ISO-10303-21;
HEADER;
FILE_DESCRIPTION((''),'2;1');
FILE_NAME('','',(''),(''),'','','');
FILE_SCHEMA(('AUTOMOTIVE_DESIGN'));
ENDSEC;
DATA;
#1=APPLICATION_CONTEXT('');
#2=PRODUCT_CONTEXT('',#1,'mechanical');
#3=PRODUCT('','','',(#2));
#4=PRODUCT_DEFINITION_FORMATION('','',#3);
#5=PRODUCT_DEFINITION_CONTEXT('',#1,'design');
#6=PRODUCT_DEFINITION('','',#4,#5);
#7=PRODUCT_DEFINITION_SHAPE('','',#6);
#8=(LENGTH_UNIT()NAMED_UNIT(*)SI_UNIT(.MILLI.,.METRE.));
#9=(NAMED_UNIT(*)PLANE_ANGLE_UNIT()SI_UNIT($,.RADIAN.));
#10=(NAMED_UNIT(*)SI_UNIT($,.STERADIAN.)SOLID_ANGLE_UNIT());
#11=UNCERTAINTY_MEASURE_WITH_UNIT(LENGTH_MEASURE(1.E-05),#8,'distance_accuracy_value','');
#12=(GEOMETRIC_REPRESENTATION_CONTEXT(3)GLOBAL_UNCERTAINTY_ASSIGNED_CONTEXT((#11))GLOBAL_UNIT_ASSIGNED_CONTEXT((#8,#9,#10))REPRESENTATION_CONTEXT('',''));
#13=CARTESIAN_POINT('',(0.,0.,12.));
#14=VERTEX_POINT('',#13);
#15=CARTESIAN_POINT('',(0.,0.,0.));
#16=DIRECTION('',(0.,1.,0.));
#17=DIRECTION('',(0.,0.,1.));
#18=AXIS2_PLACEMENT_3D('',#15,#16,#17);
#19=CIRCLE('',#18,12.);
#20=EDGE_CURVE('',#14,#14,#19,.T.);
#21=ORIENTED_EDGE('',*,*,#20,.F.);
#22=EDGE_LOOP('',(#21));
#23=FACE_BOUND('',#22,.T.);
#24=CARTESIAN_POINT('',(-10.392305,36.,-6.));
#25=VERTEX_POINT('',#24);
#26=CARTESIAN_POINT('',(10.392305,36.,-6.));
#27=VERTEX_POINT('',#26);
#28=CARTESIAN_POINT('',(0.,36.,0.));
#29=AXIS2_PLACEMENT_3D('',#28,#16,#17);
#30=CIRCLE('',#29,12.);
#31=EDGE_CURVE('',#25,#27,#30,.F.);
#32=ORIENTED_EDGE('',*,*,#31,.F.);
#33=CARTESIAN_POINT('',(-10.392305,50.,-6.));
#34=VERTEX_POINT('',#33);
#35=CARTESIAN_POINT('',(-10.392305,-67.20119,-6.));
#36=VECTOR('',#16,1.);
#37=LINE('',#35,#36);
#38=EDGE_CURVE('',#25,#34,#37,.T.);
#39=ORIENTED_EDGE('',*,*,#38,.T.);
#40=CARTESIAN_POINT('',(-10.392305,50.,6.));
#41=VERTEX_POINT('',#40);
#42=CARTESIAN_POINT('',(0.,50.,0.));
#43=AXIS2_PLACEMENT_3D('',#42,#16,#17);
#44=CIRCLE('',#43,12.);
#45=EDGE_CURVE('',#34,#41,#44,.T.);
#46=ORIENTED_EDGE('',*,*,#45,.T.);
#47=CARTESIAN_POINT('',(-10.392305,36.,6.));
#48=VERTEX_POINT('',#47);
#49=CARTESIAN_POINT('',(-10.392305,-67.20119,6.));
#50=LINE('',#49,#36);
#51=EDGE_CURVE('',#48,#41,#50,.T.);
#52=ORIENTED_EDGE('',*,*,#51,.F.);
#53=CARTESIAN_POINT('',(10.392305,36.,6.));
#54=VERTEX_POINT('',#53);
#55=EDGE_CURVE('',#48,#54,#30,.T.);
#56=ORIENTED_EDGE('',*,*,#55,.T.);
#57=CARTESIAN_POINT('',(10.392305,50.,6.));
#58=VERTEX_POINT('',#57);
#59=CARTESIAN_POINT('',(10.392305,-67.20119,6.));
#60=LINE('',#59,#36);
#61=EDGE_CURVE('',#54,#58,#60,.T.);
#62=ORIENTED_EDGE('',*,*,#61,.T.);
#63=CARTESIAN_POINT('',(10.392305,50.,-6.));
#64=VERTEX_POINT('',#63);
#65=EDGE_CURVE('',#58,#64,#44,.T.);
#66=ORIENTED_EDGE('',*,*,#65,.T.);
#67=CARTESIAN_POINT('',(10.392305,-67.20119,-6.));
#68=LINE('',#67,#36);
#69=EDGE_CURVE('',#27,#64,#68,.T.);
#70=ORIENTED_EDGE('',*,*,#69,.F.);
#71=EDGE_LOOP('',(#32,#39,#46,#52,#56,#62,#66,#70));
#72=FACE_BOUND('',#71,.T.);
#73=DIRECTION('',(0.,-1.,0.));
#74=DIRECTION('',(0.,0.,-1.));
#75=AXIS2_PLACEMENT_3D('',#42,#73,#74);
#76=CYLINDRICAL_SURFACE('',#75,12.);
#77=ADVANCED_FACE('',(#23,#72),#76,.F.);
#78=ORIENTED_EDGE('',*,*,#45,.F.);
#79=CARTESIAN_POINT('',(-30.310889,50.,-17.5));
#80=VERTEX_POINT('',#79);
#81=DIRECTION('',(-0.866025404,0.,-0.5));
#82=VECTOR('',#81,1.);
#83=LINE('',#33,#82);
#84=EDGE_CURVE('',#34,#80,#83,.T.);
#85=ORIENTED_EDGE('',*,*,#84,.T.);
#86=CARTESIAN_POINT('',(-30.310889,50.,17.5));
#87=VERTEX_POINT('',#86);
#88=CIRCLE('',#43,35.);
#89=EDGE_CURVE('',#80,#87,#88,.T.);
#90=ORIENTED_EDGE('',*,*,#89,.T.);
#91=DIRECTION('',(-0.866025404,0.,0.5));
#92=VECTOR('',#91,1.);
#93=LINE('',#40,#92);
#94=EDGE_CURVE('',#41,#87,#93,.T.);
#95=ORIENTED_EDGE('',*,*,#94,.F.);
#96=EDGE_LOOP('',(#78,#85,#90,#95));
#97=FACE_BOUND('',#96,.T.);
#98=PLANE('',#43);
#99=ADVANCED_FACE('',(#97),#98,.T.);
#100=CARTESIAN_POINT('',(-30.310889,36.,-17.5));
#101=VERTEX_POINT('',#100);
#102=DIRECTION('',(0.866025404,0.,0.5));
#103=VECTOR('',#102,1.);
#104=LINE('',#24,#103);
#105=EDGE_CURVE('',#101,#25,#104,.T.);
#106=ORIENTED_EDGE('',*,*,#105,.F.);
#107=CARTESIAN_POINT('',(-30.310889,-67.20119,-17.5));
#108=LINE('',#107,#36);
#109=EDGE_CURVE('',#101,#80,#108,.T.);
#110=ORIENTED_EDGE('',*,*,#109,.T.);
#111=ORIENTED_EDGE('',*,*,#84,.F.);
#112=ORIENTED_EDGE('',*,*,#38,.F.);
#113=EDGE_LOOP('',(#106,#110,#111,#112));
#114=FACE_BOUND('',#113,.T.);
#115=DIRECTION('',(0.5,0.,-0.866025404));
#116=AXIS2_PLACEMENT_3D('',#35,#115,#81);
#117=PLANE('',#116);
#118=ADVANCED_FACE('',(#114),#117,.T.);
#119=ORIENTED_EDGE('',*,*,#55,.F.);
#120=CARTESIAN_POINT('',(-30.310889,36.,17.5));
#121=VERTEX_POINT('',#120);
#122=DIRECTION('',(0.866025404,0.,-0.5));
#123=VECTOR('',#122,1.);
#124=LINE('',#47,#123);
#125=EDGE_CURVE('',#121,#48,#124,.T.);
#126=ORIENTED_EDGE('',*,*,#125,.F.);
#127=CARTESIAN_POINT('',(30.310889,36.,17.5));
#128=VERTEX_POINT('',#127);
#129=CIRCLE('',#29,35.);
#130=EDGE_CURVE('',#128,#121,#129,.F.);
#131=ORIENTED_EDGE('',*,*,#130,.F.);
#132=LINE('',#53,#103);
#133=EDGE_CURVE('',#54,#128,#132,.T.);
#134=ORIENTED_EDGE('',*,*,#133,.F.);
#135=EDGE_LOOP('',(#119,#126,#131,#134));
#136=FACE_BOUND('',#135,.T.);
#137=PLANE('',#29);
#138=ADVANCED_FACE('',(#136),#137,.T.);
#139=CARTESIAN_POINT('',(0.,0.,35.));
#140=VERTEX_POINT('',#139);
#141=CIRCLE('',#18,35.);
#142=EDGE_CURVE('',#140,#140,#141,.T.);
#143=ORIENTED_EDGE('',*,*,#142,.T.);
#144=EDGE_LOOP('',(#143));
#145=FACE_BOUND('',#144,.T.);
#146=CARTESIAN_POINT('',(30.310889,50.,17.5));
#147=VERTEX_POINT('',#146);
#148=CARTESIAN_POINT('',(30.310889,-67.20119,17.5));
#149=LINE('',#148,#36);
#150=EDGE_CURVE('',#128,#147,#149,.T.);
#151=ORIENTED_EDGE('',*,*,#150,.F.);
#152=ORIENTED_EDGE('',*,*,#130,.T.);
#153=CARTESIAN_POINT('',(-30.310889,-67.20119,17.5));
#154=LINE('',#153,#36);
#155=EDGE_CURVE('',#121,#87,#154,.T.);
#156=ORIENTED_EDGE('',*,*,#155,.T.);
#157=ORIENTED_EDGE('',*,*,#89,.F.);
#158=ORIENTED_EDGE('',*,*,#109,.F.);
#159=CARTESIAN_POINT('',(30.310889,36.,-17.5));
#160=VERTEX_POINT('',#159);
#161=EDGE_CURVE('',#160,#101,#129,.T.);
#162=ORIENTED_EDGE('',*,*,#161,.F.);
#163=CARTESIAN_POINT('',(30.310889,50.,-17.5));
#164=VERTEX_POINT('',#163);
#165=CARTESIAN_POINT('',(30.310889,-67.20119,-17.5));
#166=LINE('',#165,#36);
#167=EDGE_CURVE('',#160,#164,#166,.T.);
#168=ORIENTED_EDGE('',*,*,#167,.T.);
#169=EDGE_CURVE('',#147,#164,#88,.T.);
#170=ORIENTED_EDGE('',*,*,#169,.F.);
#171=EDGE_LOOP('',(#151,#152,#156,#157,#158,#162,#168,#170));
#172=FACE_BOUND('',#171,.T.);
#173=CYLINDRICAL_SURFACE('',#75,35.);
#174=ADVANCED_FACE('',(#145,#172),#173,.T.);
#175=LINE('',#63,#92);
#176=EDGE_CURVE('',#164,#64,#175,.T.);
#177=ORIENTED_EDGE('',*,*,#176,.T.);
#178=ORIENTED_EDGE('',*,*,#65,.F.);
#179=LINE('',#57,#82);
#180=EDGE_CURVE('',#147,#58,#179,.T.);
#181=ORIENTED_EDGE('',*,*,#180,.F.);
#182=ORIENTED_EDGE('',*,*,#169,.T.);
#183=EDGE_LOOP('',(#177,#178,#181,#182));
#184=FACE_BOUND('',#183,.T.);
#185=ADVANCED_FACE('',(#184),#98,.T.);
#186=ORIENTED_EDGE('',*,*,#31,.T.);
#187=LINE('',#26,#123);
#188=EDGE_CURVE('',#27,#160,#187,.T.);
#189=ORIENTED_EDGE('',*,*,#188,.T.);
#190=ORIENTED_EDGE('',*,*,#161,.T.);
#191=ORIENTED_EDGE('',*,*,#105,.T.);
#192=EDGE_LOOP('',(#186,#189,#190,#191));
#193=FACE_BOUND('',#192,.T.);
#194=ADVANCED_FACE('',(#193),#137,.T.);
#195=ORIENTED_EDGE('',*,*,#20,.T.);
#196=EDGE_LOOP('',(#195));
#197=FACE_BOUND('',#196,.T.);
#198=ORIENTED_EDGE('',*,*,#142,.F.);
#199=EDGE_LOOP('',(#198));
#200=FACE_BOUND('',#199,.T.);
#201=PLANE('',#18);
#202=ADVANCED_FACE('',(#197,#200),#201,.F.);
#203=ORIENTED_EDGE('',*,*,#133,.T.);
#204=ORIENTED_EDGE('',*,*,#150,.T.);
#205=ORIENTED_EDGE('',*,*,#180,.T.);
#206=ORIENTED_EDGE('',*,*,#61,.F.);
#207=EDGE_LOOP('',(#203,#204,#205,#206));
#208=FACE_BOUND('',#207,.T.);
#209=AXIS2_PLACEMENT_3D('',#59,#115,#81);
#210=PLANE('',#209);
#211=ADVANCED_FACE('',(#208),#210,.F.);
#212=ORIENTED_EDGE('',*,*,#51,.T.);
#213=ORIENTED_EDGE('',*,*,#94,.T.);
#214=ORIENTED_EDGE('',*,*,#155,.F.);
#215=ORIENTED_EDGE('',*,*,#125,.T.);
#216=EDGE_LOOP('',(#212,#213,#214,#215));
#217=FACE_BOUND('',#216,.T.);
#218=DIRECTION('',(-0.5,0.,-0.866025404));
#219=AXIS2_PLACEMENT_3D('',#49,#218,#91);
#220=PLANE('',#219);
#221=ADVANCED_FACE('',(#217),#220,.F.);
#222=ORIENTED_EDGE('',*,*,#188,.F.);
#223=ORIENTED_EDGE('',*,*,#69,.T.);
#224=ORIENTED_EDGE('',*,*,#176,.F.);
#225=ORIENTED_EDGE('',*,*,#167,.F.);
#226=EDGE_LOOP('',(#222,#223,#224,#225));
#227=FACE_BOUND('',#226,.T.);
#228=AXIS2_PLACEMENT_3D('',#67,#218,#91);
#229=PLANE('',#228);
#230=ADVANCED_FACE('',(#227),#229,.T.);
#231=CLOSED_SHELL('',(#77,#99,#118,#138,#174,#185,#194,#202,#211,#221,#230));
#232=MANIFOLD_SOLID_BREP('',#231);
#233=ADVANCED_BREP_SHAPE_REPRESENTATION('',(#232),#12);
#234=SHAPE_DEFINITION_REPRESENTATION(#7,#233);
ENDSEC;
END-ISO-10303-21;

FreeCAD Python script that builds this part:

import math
import FreeCAD as App
import Part
import Sketcher

V = App.Vector
Q = App.Units.Quantity

doc = App.newDocument("Part")
body = doc.addObject("PartDesign::Body", "Body")

# Sketch on XZ plane
sketch1 = body.newObject("Sketcher::SketchObject", "Sketch")
sketch1.AttachmentSupport = (doc.getObject("XZ_Plane"), [""])
sketch1.MapMode = "FlatFace"
sketch1.addGeometry([
    Part.Circle(V(0, 0, 0), V(0, 0, 1), 35),
    Part.Circle(V(0, 0, 0), V(0, 0, 1), 12),
], False)
sketch1.addConstraint([
    Sketcher.Constraint("Coincident", 0, 3, -1, 1),
    Sketcher.Constraint("Coincident", 1, 3, -1, 1),
    Sketcher.Constraint("Diameter", 0, 70.0),
    Sketcher.Constraint("Diameter", 1, 24.0),
])
pad1 = body.newObject("PartDesign::Pad", "Pad")
pad1.Profile = sketch1
pad1.Length = 50
pad1.Reversed = True

# Sketch on XZ plane
sketch2 = body.newObject("Sketcher::SketchObject", "Sketch001")
sketch2.AttachmentSupport = (doc.getObject("XZ_Plane"), [""])
sketch2.MapMode = "FlatFace"
sketch2.AttachmentOffset = App.Placement(V(0, 0, -36), App.Rotation())
sketch2.addGeometry([
    Part.LineSegment(V(30.310889, 17.5, 0), V(10.392305, 6, 0)),
    Part.ArcOfCircle(Part.Circle(V(0, 0, 0), V(0, 0, 1), 12), math.radians(30), math.radians(150)),
    Part.LineSegment(V(-10.392305, 6, 0), V(-30.310889, 17.5, 0)),
    Part.ArcOfCircle(Part.Circle(V(0, 0, 0), V(0, 0, 1), 35), math.radians(30), math.radians(150)),
], False)
sketch2.addConstraint([
    Sketcher.Constraint("Coincident", 0, 2, 1, 1),
    Sketcher.Constraint("Coincident", 1, 2, 2, 1),
    Sketcher.Constraint("Coincident", 2, 2, 3, 2),
    Sketcher.Constraint("Coincident", 3, 1, 0, 1),
    Sketcher.Constraint("Coincident", 1, 3, -1, 1),
    Sketcher.Constraint("Coincident", 3, 3, -1, 1),
    Sketcher.Constraint("Horizontal", 0, 2, 1, 2),
    Sketcher.Constraint("Horizontal", 2, 2, 3, 1),
    Sketcher.Constraint("Radius", 1, 12.0),
    Sketcher.Constraint("Radius", 3, 35.0),
    Sketcher.Constraint("Angle", 0, Q("-150 deg")),
    Sketcher.Constraint("DistanceY", -1, 1, 0, 2, 6.0),
])
pocket1 = body.newObject("PartDesign::Pocket", "Pocket")
pocket1.Profile = sketch2
pocket1.Length = 14
doc.recompute()

mirrored = body.newObject("PartDesign::Mirrored", "Mirrored")
mirrored.Originals = [pocket1]
mirrored.MirrorPlane = (doc.getObject("XY_Plane"), [""])
body.Tip = mirrored

doc.recompute()
